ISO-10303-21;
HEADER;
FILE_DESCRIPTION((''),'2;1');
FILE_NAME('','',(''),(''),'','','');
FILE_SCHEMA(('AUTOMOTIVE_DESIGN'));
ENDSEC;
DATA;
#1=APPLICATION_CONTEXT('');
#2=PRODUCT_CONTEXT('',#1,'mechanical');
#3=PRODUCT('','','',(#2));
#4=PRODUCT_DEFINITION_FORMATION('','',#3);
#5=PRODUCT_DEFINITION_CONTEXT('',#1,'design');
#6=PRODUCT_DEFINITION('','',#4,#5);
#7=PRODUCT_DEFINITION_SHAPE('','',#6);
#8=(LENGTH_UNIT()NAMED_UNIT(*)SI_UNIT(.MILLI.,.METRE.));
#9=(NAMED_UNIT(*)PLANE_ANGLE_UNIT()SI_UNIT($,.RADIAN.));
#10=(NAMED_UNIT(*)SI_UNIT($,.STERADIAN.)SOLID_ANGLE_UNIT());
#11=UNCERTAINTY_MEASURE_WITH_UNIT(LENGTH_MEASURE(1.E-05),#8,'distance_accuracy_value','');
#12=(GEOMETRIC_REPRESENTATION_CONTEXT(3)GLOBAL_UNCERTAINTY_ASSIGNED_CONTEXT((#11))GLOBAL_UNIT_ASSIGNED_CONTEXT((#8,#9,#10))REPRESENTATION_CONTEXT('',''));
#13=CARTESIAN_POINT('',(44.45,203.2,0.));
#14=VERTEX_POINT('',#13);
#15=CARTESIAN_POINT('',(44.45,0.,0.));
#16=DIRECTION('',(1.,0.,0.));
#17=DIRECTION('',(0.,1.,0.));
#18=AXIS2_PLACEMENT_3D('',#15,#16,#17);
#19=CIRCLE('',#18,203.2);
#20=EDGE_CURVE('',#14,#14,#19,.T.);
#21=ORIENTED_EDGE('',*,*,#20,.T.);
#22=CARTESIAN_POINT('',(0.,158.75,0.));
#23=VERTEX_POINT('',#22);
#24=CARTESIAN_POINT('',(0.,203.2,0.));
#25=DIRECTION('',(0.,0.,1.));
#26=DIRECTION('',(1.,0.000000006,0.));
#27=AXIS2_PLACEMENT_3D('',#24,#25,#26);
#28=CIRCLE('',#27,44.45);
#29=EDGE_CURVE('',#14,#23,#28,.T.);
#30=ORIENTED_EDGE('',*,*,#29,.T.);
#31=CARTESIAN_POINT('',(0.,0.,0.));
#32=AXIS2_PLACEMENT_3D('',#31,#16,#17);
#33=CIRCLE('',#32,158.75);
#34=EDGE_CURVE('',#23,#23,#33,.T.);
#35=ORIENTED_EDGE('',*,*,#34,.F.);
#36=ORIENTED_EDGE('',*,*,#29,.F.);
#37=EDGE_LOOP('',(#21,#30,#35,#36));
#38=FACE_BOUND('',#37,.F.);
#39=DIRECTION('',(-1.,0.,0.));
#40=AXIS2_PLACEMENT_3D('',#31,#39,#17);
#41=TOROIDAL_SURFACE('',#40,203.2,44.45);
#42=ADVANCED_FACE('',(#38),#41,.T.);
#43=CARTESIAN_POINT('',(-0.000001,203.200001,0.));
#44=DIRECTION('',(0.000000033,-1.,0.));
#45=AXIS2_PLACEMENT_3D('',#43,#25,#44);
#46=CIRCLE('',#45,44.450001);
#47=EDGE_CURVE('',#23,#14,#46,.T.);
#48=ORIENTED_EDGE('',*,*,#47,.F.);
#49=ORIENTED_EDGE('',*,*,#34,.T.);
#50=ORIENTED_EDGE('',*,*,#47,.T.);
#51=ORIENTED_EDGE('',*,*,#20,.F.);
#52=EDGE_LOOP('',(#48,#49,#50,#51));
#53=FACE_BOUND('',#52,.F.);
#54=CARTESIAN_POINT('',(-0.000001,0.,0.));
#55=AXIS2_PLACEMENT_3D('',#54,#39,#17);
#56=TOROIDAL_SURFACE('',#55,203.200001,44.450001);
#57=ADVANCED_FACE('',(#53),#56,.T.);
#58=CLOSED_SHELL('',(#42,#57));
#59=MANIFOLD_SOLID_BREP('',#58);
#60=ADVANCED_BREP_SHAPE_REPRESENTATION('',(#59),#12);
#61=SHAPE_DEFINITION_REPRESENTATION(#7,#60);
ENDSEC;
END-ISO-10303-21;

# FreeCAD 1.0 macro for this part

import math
import FreeCAD as App
import Part
import Sketcher

V = App.Vector
Q = App.Units.Quantity

doc = App.newDocument("Part")
body = doc.addObject("PartDesign::Body", "Body")

sketch1 = body.newObject("Sketcher::SketchObject", "Sketch")
sketch1.AttachmentSupport = (doc.getObject("XY_Plane"), [""])
sketch1.MapMode = "FlatFace"
sketch1.addGeometry(Part.ArcOfCircle(Part.Circle(V(-0.000001, 203.200001, 0), V(0, 0, 1), 44.450001), math.radians(-89.999998), math.radians(-0.000002)), False)
sketch1.addGeometry(Part.ArcOfCircle(Part.Circle(V(0, 203.2, 0), V(0, 0, 1), 44.45), math.radians(0), math.radians(270)), False)
sketch1.addConstraint(Sketcher.Constraint("Tangent", 0, 1, 1, 2))
sketch1.addConstraint(Sketcher.Constraint("Coincident", 1, 1, 0, 2))
sketch1.addConstraint(Sketcher.Constraint("PointOnObject", 0, 3, -2))
sketch1.addConstraint(Sketcher.Constraint("PointOnObject", 0, 1, -2))
sketch1.addConstraint(Sketcher.Constraint("Horizontal", 0, 3, 1, 1))
sketch1.addConstraint(Sketcher.Constraint("Radius", 0, Q("1.7500001 in")))
sketch1.addConstraint(Sketcher.Constraint("DistanceY", -1, 1, 0, 3, Q("8.0000001 in")))
revolution = body.newObject("PartDesign::Revolution", "Revolution")
revolution.Profile = sketch1
revolution.ReferenceAxis = (sketch1, ["H_Axis"])
revolution.Angle = 360

doc.recompute()
